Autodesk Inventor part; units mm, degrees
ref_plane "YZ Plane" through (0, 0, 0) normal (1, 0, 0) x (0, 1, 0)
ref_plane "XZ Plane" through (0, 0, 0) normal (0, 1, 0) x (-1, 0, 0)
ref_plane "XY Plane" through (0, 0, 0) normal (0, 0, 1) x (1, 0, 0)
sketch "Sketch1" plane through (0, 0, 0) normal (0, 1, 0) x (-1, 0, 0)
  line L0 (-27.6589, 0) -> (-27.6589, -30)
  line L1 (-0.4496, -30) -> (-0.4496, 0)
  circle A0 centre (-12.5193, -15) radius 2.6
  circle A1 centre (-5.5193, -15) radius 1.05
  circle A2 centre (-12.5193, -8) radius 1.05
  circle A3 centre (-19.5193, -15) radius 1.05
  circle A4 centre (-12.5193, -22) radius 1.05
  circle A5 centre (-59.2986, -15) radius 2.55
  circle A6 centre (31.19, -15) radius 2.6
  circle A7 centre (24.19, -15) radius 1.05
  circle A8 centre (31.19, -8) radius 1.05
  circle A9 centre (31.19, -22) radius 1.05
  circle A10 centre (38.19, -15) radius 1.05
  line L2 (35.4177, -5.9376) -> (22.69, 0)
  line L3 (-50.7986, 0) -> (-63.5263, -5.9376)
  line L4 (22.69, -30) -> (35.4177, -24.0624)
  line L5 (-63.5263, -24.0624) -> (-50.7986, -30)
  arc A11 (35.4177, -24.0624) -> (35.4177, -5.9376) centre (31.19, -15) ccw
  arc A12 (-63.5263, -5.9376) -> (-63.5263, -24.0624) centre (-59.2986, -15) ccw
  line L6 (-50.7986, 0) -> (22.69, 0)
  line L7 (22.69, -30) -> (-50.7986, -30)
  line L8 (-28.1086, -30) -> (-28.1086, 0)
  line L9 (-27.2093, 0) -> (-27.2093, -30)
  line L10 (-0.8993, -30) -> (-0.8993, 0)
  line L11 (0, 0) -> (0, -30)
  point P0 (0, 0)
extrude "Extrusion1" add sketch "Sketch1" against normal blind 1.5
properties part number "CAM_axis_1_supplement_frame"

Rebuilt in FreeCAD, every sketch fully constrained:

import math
import FreeCAD as App
import Part
import Sketcher
from FreeCAD import Vector
Q = App.Units.Quantity

doc = App.newDocument("Part")
body = doc.addObject("PartDesign::Body", "Body")

sketch1 = body.newObject("Sketcher::SketchObject", "Sketch")
sketch1.AttachmentSupport = (doc.getObject("XZ_Plane"), [""])
sketch1.MapMode = "FlatFace"
sketch1.addGeometry(Part.LineSegment(Vector(50.8, 0, 0), Vector(63.5, -5.9, 0)), False)
sketch1.addGeometry(Part.ArcOfCircle(Part.Circle(Vector(59.3, -15, 0), Vector(0, 0, 1), 10), math.radians(-65), math.radians(65)), False)
sketch1.addGeometry(Part.LineSegment(Vector(63.5, -24.1, 0), Vector(50.8, -30, 0)), False)
sketch1.addGeometry(Part.LineSegment(Vector(50.8, -30, 0), Vector(-22.7, -30, 0)), False)
sketch1.addGeometry(Part.LineSegment(Vector(-22.7, -30, 0), Vector(-35.4, -24.1, 0)), False)
sketch1.addGeometry(Part.ArcOfCircle(Part.Circle(Vector(-31.2, -15, 0), Vector(0, 0, 1), 10), math.radians(115), math.radians(245)), False)
sketch1.addGeometry(Part.LineSegment(Vector(-35.4, -5.9, 0), Vector(-22.7, 0, 0)), False)
sketch1.addGeometry(Part.LineSegment(Vector(-22.7, 0, 0), Vector(50.8, 0, 0)), False)
sketch1.addGeometry(Part.Circle(Vector(12.5, -8, 0), Vector(0, 0, 1), 1.1), False)
sketch1.addGeometry(Part.Circle(Vector(12.5, -22, 0), Vector(0, 0, 1), 1.1), False)
sketch1.addGeometry(Part.Circle(Vector(19.5, -15, 0), Vector(0, 0, 1), 1.1), False)
sketch1.addGeometry(Part.Circle(Vector(12.5, -15, 0), Vector(0, 0, 1), 2.6), False)
sketch1.addGeometry(Part.Circle(Vector(5.5, -15, 0), Vector(0, 0, 1), 1.1), False)
sketch1.addGeometry(Part.Circle(Vector(59.3, -15, 0), Vector(0, 0, 1), 2.5), False)
sketch1.addGeometry(Part.Circle(Vector(-31.2, -8, 0), Vector(0, 0, 1), 1.1), False)
sketch1.addGeometry(Part.Circle(Vector(-31.2, -22, 0), Vector(0, 0, 1), 1.1), False)
sketch1.addGeometry(Part.Circle(Vector(-24.2, -15, 0), Vector(0, 0, 1), 1.1), False)
sketch1.addGeometry(Part.Circle(Vector(-31.2, -15, 0), Vector(0, 0, 1), 2.6), False)
sketch1.addGeometry(Part.Circle(Vector(-38.2, -15, 0), Vector(0, 0, 1), 1.1), False)
sketch1.addConstraint(Sketcher.Constraint("Tangent", 0, 2, 1, 2))
sketch1.addConstraint(Sketcher.Constraint("Tangent", 1, 1, 2, 1))
sketch1.addConstraint(Sketcher.Constraint("Coincident", 2, 2, 3, 1))
sketch1.addConstraint(Sketcher.Constraint("Coincident", 3, 2, 4, 1))
sketch1.addConstraint(Sketcher.Constraint("Tangent", 4, 2, 5, 2))
sketch1.addConstraint(Sketcher.Constraint("Tangent", 5, 1, 6, 1))
sketch1.addConstraint(Sketcher.Constraint("Coincident", 6, 2, 7, 1))
sketch1.addConstraint(Sketcher.Constraint("Coincident", 7, 2, 0, 1))
sketch1.addConstraint(Sketcher.Constraint("Horizontal", 3))
sketch1.addConstraint(Sketcher.Constraint("Horizontal", 7))
sketch1.addConstraint(Sketcher.Constraint("Coincident", 13, 3, 1, 3))
sketch1.addConstraint(Sketcher.Constraint("Coincident", 17, 3, 5, 3))
sketch1.addConstraint(Sketcher.Constraint("Equal", 1, 5))
sketch1.addConstraint(Sketcher.Constraint("Equal", 8, 9))
sketch1.addConstraint(Sketcher.Constraint("Equal", 9, 10))
sketch1.addConstraint(Sketcher.Constraint("Equal", 10, 12))
sketch1.addConstraint(Sketcher.Constraint("Equal", 12, 14))
sketch1.addConstraint(Sketcher.Constraint("Equal", 14, 15))
sketch1.addConstraint(Sketcher.Constraint("Equal", 15, 16))
sketch1.addConstraint(Sketcher.Constraint("Equal", 11, 17))
sketch1.addConstraint(Sketcher.Constraint("Equal", 16, 18))
sketch1.addConstraint(Sketcher.Constraint("PointOnObject", 6, 2, -1))
sketch1.addConstraint(Sketcher.Constraint("Parallel", 0, 4))
sketch1.addConstraint(Sketcher.Constraint("Parallel", 2, 6))
sketch1.addConstraint(Sketcher.Constraint("Horizontal", 1, 3, 5, 3))
sketch1.addConstraint(Sketcher.Constraint("Horizontal", 5, 3, 10, 3))
sketch1.addConstraint(Sketcher.Constraint("Horizontal", 10, 3, 11, 3))
sketch1.addConstraint(Sketcher.Constraint("Horizontal", 11, 3, 12, 3))
sketch1.addConstraint(Sketcher.Constraint("Horizontal", 8, 3, 14, 3))
sketch1.addConstraint(Sketcher.Constraint("Horizontal", 9, 3, 15, 3))
sketch1.addConstraint(Sketcher.Constraint("Horizontal", 13, 3, 16, 3))
sketch1.addConstraint(Sketcher.Constraint("Horizontal", 17, 3, 18, 3))
sketch1.addConstraint(Sketcher.Constraint("Horizontal", 1, 1, 4, 2))
sketch1.addConstraint(Sketcher.Constraint("Vertical", 8, 3, 9, 3))
sketch1.addConstraint(Sketcher.Constraint("Vertical", 9, 3, 11, 3))
sketch1.addConstraint(Sketcher.Constraint("Vertical", 5, 3, 14, 3))
sketch1.addConstraint(Sketcher.Constraint("Vertical", 14, 3, 15, 3))
sketch1.addConstraint(Sketcher.Constraint("Vertical", 3, 2, 6, 2))
sketch1.addConstraint(Sketcher.Constraint("Radius", 1, 10.0))
sketch1.addConstraint(Sketcher.Constraint("Diameter", 8, 2.1))
sketch1.addConstraint(Sketcher.Constraint("Diameter", 11, 5.2))
sketch1.addConstraint(Sketcher.Constraint("Diameter", 13, 5.1))
sketch1.addConstraint(Sketcher.Constraint("DistanceY", 1, 3, -1, 1, 15.0))
sketch1.addConstraint(Sketcher.Constraint("DistanceY", 8, 3, -1, 1, 8.0))
sketch1.addConstraint(Sketcher.Constraint("DistanceY", 9, 3, -1, 1, 22.0))
sketch1.addConstraint(Sketcher.Constraint("DistanceX", 8, 3, 10, 3, 7.0))
sketch1.addConstraint(Sketcher.Constraint("DistanceX", 12, 3, 11, 3, 7.0))
sketch1.addConstraint(Sketcher.Constraint("DistanceX", 5, 3, 16, 3, 7.0))
sketch1.addConstraint(Sketcher.Constraint("DistanceX", 18, 3, 5, 3, 7.0))
sketch1.addConstraint(Sketcher.Constraint("Angle", 0, Q("-25.0095 deg")))
sketch1.addConstraint(Sketcher.Constraint("DistanceX", 5, 3, -1, 1, 31.19))
sketch1.addConstraint(Sketcher.Constraint("DistanceX", 3, 2, 3, 1, 73.4886))
sketch1.addConstraint(Sketcher.Constraint("DistanceX", 10, 3, 0, 2, 44.007))
pad1 = body.newObject("PartDesign::Pad", "Pad")
pad1.Profile = sketch1
pad1.Length = 1.5

doc.recompute()
